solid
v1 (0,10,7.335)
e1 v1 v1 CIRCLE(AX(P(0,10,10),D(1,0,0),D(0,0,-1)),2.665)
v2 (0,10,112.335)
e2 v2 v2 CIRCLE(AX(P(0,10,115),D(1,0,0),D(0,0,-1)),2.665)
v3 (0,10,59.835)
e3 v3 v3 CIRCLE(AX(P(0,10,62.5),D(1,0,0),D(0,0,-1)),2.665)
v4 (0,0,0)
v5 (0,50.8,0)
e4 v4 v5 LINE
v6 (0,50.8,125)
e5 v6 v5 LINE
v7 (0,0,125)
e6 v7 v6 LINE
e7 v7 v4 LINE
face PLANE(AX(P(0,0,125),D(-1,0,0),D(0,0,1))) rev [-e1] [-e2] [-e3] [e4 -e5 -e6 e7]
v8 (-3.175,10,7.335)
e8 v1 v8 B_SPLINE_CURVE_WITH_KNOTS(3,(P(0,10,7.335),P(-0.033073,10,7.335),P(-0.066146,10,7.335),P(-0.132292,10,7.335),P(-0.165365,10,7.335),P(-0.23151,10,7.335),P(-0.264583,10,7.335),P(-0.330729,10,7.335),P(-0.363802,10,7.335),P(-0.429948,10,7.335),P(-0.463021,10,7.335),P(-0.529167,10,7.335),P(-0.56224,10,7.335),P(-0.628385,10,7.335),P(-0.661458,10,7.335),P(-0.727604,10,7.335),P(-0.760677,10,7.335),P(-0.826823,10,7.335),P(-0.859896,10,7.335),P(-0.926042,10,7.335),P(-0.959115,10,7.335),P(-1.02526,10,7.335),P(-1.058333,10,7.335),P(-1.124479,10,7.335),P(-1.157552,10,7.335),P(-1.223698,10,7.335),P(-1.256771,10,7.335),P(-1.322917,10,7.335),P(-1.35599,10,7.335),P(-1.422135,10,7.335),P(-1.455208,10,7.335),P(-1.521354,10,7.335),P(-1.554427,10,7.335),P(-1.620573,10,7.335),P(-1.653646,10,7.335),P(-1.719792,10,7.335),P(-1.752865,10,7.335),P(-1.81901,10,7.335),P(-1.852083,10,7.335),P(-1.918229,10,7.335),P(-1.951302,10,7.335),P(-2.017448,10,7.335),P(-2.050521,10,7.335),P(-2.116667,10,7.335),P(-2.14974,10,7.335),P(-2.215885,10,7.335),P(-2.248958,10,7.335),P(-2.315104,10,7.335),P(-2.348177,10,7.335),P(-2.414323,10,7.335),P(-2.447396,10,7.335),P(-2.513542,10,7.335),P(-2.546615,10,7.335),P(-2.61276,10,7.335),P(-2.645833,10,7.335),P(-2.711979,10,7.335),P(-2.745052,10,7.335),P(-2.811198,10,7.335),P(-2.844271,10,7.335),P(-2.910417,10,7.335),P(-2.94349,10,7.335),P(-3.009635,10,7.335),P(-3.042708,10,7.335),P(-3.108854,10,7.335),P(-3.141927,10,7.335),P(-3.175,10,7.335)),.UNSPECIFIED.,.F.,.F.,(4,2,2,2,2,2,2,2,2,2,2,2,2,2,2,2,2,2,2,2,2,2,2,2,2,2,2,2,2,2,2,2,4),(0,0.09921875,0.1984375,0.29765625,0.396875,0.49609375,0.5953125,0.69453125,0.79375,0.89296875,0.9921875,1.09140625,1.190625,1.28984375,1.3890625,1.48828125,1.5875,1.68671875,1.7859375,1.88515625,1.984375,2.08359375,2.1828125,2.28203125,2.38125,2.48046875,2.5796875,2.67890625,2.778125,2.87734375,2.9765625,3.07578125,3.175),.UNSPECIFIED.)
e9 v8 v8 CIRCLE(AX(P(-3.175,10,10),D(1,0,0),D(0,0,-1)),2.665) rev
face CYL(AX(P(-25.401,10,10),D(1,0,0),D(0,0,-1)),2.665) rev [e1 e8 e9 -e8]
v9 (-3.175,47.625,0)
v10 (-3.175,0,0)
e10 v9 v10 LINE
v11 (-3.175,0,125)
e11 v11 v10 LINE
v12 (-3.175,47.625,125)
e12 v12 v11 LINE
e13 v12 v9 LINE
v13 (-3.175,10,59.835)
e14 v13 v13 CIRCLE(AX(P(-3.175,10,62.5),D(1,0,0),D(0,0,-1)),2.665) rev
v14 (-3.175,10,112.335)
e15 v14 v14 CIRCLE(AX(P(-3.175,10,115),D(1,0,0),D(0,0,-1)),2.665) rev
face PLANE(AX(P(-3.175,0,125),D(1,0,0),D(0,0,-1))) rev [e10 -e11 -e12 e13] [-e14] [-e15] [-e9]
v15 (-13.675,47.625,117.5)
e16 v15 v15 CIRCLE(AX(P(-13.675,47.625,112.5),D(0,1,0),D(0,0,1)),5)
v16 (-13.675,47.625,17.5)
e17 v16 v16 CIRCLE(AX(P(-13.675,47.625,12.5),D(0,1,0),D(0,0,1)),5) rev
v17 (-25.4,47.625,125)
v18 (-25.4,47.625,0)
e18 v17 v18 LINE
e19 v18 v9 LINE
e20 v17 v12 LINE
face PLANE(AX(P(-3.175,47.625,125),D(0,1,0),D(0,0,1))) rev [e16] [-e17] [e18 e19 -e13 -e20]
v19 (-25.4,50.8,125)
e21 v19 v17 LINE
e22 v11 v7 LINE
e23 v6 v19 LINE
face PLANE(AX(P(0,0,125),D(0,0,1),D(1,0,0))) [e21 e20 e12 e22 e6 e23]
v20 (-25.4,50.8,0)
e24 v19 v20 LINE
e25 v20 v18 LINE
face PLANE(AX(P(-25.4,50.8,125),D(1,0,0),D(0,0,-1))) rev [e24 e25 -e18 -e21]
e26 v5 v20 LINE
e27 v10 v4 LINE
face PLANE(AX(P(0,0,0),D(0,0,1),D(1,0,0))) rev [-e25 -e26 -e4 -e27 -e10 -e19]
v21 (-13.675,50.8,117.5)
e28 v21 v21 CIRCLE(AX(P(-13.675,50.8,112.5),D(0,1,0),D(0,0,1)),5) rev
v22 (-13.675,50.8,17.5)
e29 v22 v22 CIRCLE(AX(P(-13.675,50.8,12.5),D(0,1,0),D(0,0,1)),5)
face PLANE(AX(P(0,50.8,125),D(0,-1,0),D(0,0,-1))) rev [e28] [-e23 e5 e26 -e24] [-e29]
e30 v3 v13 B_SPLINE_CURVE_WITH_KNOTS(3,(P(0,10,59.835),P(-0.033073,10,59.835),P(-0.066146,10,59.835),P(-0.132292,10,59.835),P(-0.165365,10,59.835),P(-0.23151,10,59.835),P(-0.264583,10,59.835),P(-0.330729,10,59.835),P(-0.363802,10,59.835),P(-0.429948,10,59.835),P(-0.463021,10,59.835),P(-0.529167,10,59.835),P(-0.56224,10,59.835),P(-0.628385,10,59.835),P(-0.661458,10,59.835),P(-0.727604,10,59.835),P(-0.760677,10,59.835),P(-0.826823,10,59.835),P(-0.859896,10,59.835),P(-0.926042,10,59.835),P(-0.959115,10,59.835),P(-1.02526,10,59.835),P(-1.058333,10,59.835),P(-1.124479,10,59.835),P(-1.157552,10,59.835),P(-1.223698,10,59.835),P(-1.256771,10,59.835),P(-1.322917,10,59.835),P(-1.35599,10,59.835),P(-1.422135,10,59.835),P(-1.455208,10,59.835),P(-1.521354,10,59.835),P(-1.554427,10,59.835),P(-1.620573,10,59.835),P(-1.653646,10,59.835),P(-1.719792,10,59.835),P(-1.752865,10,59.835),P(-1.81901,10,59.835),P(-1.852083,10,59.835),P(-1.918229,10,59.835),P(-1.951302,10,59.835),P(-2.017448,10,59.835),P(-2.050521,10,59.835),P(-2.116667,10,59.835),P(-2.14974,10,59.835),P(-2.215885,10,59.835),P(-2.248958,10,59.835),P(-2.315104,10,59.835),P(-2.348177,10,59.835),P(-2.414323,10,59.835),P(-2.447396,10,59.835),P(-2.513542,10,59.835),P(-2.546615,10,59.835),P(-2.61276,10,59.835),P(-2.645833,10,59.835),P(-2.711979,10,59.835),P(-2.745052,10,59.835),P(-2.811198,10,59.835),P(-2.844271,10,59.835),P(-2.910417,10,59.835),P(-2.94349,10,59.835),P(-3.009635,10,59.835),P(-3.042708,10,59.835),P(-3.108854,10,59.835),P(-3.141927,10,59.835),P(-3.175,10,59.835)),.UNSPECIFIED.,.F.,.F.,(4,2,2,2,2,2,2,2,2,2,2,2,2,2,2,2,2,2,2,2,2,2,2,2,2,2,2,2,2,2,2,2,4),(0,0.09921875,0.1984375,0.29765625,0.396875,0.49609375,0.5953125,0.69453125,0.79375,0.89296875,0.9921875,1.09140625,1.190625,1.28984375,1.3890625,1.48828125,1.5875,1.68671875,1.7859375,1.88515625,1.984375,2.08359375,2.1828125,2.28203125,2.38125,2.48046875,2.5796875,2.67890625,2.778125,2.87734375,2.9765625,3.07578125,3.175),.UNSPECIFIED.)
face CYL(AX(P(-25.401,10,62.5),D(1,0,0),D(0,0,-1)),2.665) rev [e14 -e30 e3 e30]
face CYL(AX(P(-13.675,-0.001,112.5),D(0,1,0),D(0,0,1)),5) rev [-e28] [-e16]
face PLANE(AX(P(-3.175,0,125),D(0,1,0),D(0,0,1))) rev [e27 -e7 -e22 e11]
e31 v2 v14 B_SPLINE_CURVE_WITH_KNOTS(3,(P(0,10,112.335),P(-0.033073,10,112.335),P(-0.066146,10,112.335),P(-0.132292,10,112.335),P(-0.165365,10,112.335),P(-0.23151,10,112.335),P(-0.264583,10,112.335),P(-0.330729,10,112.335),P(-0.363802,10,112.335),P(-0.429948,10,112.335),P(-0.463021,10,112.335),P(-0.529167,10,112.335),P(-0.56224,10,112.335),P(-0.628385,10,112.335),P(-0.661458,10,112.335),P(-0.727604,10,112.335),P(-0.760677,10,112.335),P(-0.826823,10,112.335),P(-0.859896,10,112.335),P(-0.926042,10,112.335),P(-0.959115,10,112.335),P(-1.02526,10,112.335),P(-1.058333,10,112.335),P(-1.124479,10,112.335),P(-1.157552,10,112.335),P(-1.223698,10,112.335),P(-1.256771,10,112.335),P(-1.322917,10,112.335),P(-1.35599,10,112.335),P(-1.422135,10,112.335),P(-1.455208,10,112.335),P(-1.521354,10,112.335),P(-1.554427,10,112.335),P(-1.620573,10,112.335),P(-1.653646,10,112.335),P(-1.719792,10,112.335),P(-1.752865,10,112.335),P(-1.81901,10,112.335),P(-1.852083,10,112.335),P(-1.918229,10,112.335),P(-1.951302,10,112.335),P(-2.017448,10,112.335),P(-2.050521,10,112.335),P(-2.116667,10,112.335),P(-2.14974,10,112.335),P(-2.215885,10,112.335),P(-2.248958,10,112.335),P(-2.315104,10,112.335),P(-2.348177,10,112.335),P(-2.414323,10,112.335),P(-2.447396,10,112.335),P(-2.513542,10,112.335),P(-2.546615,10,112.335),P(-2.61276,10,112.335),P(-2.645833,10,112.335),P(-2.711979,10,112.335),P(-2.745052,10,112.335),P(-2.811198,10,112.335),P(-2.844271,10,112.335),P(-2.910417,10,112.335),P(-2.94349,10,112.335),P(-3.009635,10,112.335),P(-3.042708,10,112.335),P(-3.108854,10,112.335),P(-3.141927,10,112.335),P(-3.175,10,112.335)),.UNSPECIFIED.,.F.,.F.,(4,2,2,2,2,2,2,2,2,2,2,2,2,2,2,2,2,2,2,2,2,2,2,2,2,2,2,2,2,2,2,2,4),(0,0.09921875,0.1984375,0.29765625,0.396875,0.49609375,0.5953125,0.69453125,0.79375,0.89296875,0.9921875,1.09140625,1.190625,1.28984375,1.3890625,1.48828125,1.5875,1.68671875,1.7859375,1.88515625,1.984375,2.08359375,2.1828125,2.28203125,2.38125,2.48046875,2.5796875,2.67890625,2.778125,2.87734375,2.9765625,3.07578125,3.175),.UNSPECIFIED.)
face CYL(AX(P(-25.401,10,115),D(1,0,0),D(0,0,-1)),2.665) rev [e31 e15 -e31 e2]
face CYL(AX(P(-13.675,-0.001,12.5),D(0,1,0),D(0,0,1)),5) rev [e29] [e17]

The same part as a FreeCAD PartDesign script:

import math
import FreeCAD as App
import Part
import Sketcher
Q = App.Units.Quantity

doc = App.newDocument("Part")
body = doc.addObject("PartDesign::Body", "Body")

# Sketch on XY plane
sketch1 = doc.addObject("Sketcher::SketchObject", "Sketch")
body.addObject(sketch1)
sketch1.AttachmentSupport = (doc.XY_Plane, [""])
sketch1.MapMode = "FlatFace"
sketch1.addGeometry([
    Part.LineSegment(App.Vector(0, 0, 0), App.Vector(0, 50.8, 0)),  # 0
    Part.LineSegment(App.Vector(0, 50.8, 0), App.Vector(-25.4, 50.8, 0)),  # 1
    Part.LineSegment(App.Vector(-25.4, 50.8, 0), App.Vector(-25.4, 47.6, 0)),  # 2
    Part.LineSegment(App.Vector(-25.4, 47.6, 0), App.Vector(-3.2, 47.6, 0)),  # 3
    Part.LineSegment(App.Vector(-3.2, 47.6, 0), App.Vector(-3.2, 0, 0)),  # 4
    Part.LineSegment(App.Vector(-3.2, 0, 0), App.Vector(0, 0, 0)),  # 5
], False)
sketch1.addConstraint([
    Sketcher.Constraint("Coincident", 0, 2, 1, 1),
    Sketcher.Constraint("Coincident", 1, 2, 2, 1),
    Sketcher.Constraint("Coincident", 2, 2, 3, 1),
    Sketcher.Constraint("Coincident", 3, 2, 4, 1),
    Sketcher.Constraint("Coincident", 4, 2, 5, 1),
    Sketcher.Constraint("Coincident", 5, 2, 0, 1),
    Sketcher.Constraint("Vertical", 0),
    Sketcher.Constraint("Horizontal", 1),
    Sketcher.Constraint("Vertical", 2),
    Sketcher.Constraint("Horizontal", 3),
    Sketcher.Constraint("Vertical", 4),
    Sketcher.Constraint("Horizontal", 5),
    Sketcher.Constraint("Coincident", 5, 2, -1, 1),
    Sketcher.Constraint("Equal", 5, 2),
    Sketcher.Constraint("DistanceX", 1, 2, 1, 1, Q("1 in")),
    Sketcher.Constraint("DistanceY", 0, 1, 0, 2, Q("2 in")),
    Sketcher.Constraint("DistanceX", 3, 1, 3, 2, Q("0.875 in")),
])
pad1 = doc.addObject("PartDesign::Pad", "Pad")
body.addObject(pad1)
pad1.Profile = sketch1
pad1.Length = 125

# Sketch on YZ plane
sketch2 = doc.addObject("Sketcher::SketchObject", "Sketch001")
body.addObject(sketch2)
sketch2.AttachmentSupport = (doc.YZ_Plane, [""])
sketch2.MapMode = "FlatFace"
sketch2.addGeometry(Part.Circle(App.Vector(10, 115, 0), App.Vector(0, 0, 1), 2.7), False)
sketch2.addConstraint([
    Sketcher.Constraint("Diameter", 0, Q("5.33 mm")),
    Sketcher.Constraint("DistanceX", -1, 1, 0, 3, Q("10 mm")),
    Sketcher.Constraint("DistanceY", -1, 1, 0, 3, Q("115 mm")),
])
pocket1 = doc.addObject("PartDesign::Pocket", "Pocket")
body.addObject(pocket1)
pocket1.Profile = sketch2
pocket1.Type = "UpToFirst"

# Sketch on YZ plane
sketch3 = doc.addObject("Sketcher::SketchObject", "Sketch002")
body.addObject(sketch3)
sketch3.AttachmentSupport = (doc.YZ_Plane, [""])
sketch3.MapMode = "FlatFace"
sketch3.addGeometry(Part.Circle(App.Vector(10, 10, 0), App.Vector(0, 0, 1), 2.7), False)
sketch3.addConstraint([
    Sketcher.Constraint("Diameter", 0, Q("5.33 mm")),
    Sketcher.Constraint("DistanceX", -1, 1, 0, 3, Q("10 mm")),
    Sketcher.Constraint("DistanceY", -1, 1, 0, 3, Q("10 mm")),
])
pocket2 = doc.addObject("PartDesign::Pocket", "Pocket001")
body.addObject(pocket2)
pocket2.Profile = sketch3
pocket2.Type = "UpToFirst"

# Sketch on YZ plane
sketch4 = doc.addObject("Sketcher::SketchObject", "Sketch003")
body.addObject(sketch4)
sketch4.AttachmentSupport = (doc.YZ_Plane, [""])
sketch4.MapMode = "FlatFace"
sketch4.addGeometry(Part.Circle(App.Vector(10, 62.5, 0), App.Vector(0, 0, 1), 2.7), False)
sketch4.addConstraint([
    Sketcher.Constraint("Diameter", 0, Q("5.33 mm")),
    Sketcher.Constraint("DistanceX", -1, 1, 0, 3, Q("10 mm")),
    Sketcher.Constraint("DistanceY", -1, 1, 0, 3, Q("62.5 mm")),
])
pocket3 = doc.addObject("PartDesign::Pocket", "Pocket002")
body.addObject(pocket3)
pocket3.Profile = sketch4
pocket3.Type = "UpToFirst"

# Sketch on XZ plane
sketch5 = doc.addObject("Sketcher::SketchObject", "Sketch004")
body.addObject(sketch5)
sketch5.AttachmentSupport = (doc.XZ_Plane, [""])
sketch5.MapMode = "FlatFace"
sketch5.AttachmentOffset = App.Placement(App.Vector(0, 0, -2 * 25.4), App.Rotation())
sketch5.addGeometry(Part.Circle(App.Vector(-14, 112, 0), App.Vector(0, 0, 1), 5), False)
sketch5.addConstraint([
    Sketcher.Constraint("Diameter", 0, Q("10 mm")),
    Sketcher.Constraint("DistanceX", 0, 3, -1, 1, Q("13.675 mm")),
    Sketcher.Constraint("DistanceY", -1, 1, 0, 3, Q("112.5 mm")),
])
pocket4 = doc.addObject("PartDesign::Pocket", "Pocket003")
body.addObject(pocket4)
pocket4.Profile = sketch5
pocket4.Type = "UpToFirst"
pocket4.Reversed = True

# Sketch on XZ plane
sketch6 = doc.addObject("Sketcher::SketchObject", "Sketch005")
body.addObject(sketch6)
sketch6.AttachmentSupport = (doc.XZ_Plane, [""])
sketch6.MapMode = "FlatFace"
sketch6.AttachmentOffset = App.Placement(App.Vector(0, 0, -2 * 25.4), App.Rotation())
sketch6.addGeometry([
    Part.ArcOfCircle(Part.Circle(App.Vector(-14, 12, 0), App.Vector(0, 0, 1), 5), math.radians(-90), math.radians(0)),
    Part.ArcOfCircle(Part.Circle(App.Vector(-14, 12, 0), App.Vector(0, 0, 1), 5), math.radians(90), math.radians(270)),
    Part.ArcOfCircle(Part.Circle(App.Vector(-14, 12, 0), App.Vector(0, 0, 1), 5), math.radians(0), math.radians(90)),
], False)
sketch6.addConstraint([
    Sketcher.Constraint("Tangent", 0, 1, 1, 2),
    Sketcher.Constraint("Tangent", 1, 1, 2, 2),
    Sketcher.Constraint("Tangent", 2, 1, 0, 2),
    Sketcher.Constraint("Horizontal", 1, 3, 2, 1),
    Sketcher.Constraint("Vertical", 2, 3, 0, 1),
    Sketcher.Constraint("Vertical", 0, 1, 1, 1),
    Sketcher.Constraint("Radius", 0, Q("5 mm")),
    Sketcher.Constraint("DistanceX", 0, 3, -1, 1, Q("13.675 mm")),
    Sketcher.Constraint("DistanceY", -1, 1, 0, 3, Q("12.5 mm")),
])
pocket5 = doc.addObject("PartDesign::Pocket", "Pocket004")
body.addObject(pocket5)
pocket5.Profile = sketch6
pocket5.Type = "UpToFirst"
pocket5.Reversed = True

doc.recompute()
